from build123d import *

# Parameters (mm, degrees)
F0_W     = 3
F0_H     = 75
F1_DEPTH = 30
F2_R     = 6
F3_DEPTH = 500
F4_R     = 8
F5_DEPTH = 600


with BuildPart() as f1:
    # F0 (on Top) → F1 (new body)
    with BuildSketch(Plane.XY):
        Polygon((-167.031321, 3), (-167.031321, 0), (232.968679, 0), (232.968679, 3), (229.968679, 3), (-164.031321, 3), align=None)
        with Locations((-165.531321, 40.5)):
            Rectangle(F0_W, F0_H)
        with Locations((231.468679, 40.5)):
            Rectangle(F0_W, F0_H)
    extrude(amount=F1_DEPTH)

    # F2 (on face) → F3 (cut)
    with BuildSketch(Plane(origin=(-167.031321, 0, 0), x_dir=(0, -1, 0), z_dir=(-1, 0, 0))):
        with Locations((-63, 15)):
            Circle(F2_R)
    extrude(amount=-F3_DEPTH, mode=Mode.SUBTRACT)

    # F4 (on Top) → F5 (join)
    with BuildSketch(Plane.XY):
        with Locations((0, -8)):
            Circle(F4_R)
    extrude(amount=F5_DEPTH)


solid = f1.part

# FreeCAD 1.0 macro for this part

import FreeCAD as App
import Part
import Sketcher
Q = App.Units.Quantity

doc = App.newDocument("Part")
params = doc.addObject("Spreadsheet::Sheet", "Params")
for row, (alias, value) in enumerate([
    ("sketch1_width", "400 mm"),
    ("sketch1_width2", "3 mm"),
    ("sketch1_height", "78 mm"),
    ("sketch1_height2", "75 mm"),
    ("pad1_length", "30 mm"),
    ("sketch2_diameter", "12 mm"),
    ("pocket1_length", "500 mm"),
    ("sketch3_diameter", "16 mm"),
    ("pad2_length", "600 mm"),
], start=1):
    params.set(f"A{row}", alias)
    params.set(f"B{row}", "=" + value)
    params.setAlias(f"B{row}", alias)

body = doc.addObject("PartDesign::Body", "Body")
body.AllowCompound = True

# Sketch on XY plane
sketch1 = doc.addObject("Sketcher::SketchObject", "Sketch")
body.addObject(sketch1)
sketch1.AttachmentSupport = (doc.XY_Plane, [""])
sketch1.MapMode = "FlatFace"
sketch1.addGeometry([
    Part.LineSegment(App.Vector(-167, 0, 0), App.Vector(233, 0, 0)),  # 0
    Part.LineSegment(App.Vector(233, 0, 0), App.Vector(233, 78, 0)),  # 1
    Part.LineSegment(App.Vector(233, 78, 0), App.Vector(230, 78, 0)),  # 2
    Part.LineSegment(App.Vector(230, 78, 0), App.Vector(230, 3, 0)),  # 3
    Part.LineSegment(App.Vector(230, 3, 0), App.Vector(-164, 3, 0)),  # 4
    Part.LineSegment(App.Vector(-164, 3, 0), App.Vector(-164, 78, 0)),  # 5
    Part.LineSegment(App.Vector(-164, 78, 0), App.Vector(-167, 78, 0)),  # 6
    Part.LineSegment(App.Vector(-167, 78, 0), App.Vector(-167, 0, 0)),  # 7
], False)
sketch1.addConstraint([
    Sketcher.Constraint("Coincident", 0, 2, 1, 1),
    Sketcher.Constraint("Coincident", 1, 2, 2, 1),
    Sketcher.Constraint("Coincident", 2, 2, 3, 1),
    Sketcher.Constraint("Coincident", 3, 2, 4, 1),
    Sketcher.Constraint("Coincident", 4, 2, 5, 1),
    Sketcher.Constraint("Coincident", 5, 2, 6, 1),
    Sketcher.Constraint("Coincident", 6, 2, 7, 1),
    Sketcher.Constraint("Coincident", 7, 2, 0, 1),
    Sketcher.Constraint("Horizontal", 0),
    Sketcher.Constraint("Vertical", 1),
    Sketcher.Constraint("Horizontal", 2),
    Sketcher.Constraint("Vertical", 3),
    Sketcher.Constraint("Horizontal", 4),
    Sketcher.Constraint("Vertical", 5),
    Sketcher.Constraint("Horizontal", 6),
    Sketcher.Constraint("Vertical", 7),
    Sketcher.Constraint("PointOnObject", 0, 2, -1),
    Sketcher.Constraint("Horizontal", 2, 2, 5, 2),
    Sketcher.Constraint("Equal", 2, 6),
    Sketcher.Constraint("DistanceX", 0, 1, 0, 2, Q("400 mm")),
    Sketcher.Constraint("DistanceX", 2, 2, 2, 1, Q("3 mm")),
    Sketcher.Constraint("DistanceY", 1, 1, 1, 2, Q("78 mm")),
    Sketcher.Constraint("DistanceY", 3, 2, 3, 1, Q("75 mm")),
    Sketcher.Constraint("DistanceX", -1, 1, 0, 2, Q("232.968679 mm")),
])
sketch1.setExpression("Constraints[19]", "Params.sketch1_width")
sketch1.setExpression("Constraints[20]", "Params.sketch1_width2")
sketch1.setExpression("Constraints[21]", "Params.sketch1_height")
sketch1.setExpression("Constraints[22]", "Params.sketch1_height2")
pad1 = doc.addObject("PartDesign::Pad", "Pad")
body.addObject(pad1)
pad1.Profile = sketch1
pad1.setExpression("Length", "Params.pad1_length")

# Sketch on YZ plane
sketch2 = doc.addObject("Sketcher::SketchObject", "Sketch001")
body.addObject(sketch2)
sketch2.AttachmentSupport = (doc.YZ_Plane, [""])
sketch2.MapMode = "FlatFace"
sketch2.AttachmentOffset = App.Placement(App.Vector(0, 0, -167.031321), App.Rotation())
sketch2.addGeometry(Part.Circle(App.Vector(63, 15, 0), App.Vector(0, 0, 1), 6), False)
sketch2.addConstraint([
    Sketcher.Constraint("Diameter", 0, Q("12 mm")),
    Sketcher.Constraint("DistanceX", -1, 1, 0, 3, Q("63 mm")),
    Sketcher.Constraint("DistanceY", -1, 1, 0, 3, Q("15 mm")),
])
sketch2.setExpression("Constraints[0]", "Params.sketch2_diameter")
pocket1 = doc.addObject("PartDesign::Pocket", "Pocket")
body.addObject(pocket1)
pocket1.Profile = sketch2
pocket1.setExpression("Length", "Params.pocket1_length")
pocket1.Reversed = True

# Sketch on XY plane
sketch3 = doc.addObject("Sketcher::SketchObject", "Sketch002")
body.addObject(sketch3)
sketch3.AttachmentSupport = (doc.XY_Plane, [""])
sketch3.MapMode = "FlatFace"
sketch3.addGeometry(Part.Circle(App.Vector(0, -8, 0), App.Vector(0, 0, 1), 8), False)
sketch3.addConstraint([
    Sketcher.Constraint("PointOnObject", 0, 3, -2),
    Sketcher.Constraint("Diameter", 0, Q("16 mm")),
    Sketcher.Constraint("DistanceY", 0, 3, -1, 1, Q("8 mm")),
])
sketch3.setExpression("Constraints[1]", "Params.sketch3_diameter")
pad2 = doc.addObject("PartDesign::Pad", "Pad001")
body.addObject(pad2)
pad2.Profile = sketch3
pad2.setExpression("Length", "Params.pad2_length")

doc.recompute()
